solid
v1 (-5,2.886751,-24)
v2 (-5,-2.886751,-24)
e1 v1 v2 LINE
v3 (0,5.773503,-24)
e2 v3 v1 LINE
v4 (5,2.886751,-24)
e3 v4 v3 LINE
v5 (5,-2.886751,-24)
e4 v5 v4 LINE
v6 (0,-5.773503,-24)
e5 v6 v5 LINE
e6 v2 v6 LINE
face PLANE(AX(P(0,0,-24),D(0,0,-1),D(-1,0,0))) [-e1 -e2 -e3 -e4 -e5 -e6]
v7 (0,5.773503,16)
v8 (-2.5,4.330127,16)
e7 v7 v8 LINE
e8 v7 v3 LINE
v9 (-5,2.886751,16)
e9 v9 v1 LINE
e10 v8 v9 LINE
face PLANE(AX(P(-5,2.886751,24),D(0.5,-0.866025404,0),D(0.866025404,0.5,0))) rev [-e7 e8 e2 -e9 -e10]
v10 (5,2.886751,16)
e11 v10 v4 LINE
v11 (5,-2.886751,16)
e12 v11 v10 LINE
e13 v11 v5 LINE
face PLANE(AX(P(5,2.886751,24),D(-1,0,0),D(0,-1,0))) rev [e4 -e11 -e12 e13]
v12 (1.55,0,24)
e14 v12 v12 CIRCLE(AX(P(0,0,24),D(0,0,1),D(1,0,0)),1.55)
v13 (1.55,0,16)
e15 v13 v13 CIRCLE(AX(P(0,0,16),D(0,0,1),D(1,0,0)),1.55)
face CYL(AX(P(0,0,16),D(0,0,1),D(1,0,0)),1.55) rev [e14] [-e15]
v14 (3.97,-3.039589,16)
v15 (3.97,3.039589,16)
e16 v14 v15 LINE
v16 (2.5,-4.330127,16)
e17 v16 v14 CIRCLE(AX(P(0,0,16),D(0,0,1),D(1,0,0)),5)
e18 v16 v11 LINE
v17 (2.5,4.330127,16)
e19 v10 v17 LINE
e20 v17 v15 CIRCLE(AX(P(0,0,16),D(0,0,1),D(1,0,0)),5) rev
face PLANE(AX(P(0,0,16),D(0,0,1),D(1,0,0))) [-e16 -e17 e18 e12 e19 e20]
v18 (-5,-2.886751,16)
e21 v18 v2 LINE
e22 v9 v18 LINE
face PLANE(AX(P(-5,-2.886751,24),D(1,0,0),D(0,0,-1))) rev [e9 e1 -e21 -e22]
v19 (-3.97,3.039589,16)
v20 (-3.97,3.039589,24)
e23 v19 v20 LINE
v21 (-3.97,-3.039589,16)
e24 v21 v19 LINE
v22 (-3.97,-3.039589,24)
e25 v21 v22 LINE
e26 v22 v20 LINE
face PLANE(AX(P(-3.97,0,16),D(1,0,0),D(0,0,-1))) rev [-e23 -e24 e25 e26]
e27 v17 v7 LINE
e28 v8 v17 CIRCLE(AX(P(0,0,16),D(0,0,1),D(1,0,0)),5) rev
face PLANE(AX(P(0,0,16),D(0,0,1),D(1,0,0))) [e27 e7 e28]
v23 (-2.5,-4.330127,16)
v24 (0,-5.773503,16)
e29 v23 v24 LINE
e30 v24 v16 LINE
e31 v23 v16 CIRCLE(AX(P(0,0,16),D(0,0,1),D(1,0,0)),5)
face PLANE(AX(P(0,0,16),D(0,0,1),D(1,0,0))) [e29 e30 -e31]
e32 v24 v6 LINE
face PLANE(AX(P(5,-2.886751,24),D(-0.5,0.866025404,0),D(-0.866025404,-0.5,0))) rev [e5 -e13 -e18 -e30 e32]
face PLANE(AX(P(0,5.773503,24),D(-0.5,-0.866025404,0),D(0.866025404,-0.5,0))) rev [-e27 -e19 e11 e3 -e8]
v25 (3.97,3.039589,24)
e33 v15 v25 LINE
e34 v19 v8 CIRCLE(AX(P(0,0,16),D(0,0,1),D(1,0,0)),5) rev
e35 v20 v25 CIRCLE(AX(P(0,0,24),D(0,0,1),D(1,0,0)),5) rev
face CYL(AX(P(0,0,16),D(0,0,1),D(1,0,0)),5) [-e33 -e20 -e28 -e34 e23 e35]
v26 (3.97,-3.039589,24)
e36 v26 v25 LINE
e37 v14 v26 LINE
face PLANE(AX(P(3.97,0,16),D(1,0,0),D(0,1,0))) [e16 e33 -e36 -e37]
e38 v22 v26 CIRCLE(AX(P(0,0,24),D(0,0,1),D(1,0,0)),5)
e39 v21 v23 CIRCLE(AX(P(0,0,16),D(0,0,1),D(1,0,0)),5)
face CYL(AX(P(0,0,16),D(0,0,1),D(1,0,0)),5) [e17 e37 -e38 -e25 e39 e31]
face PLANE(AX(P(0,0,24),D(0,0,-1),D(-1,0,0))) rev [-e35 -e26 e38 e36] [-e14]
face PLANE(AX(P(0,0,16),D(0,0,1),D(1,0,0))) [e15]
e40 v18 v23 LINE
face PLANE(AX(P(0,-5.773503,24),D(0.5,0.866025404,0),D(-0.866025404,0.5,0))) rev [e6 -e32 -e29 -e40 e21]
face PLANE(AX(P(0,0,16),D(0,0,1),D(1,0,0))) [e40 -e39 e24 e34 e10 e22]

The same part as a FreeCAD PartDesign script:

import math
import FreeCAD as App
import Part
import Sketcher
Q = App.Units.Quantity


def add_polygon(sketch, points):
    """Adds a closed chain of lines whose ends are joined by coincident constraints."""
    first, n = sketch.GeometryCount, len(points)
    for a, b in zip(points, points[1:] + points[:1]):
        sketch.addGeometry(Part.LineSegment(App.Vector(*a, 0), App.Vector(*b, 0)), False)
    for i in range(n):
        sketch.addConstraint(Sketcher.Constraint("Coincident", first + i, 2, first + (i + 1) % n, 1))

doc = App.newDocument("Part")
body = doc.addObject("PartDesign::Body", "Body")

# Sketch on XY plane
sketch1 = body.newObject("Sketcher::SketchObject", "Sketch")
sketch1.AttachmentSupport = (doc.getObject("XY_Plane"), [""])
sketch1.MapMode = "FlatFace"
add_polygon(sketch1, [(5, 3), (0, 6), (-5, 3), (-5, -3), (0, -6), (5, -3)])  # lines 0-5
sketch1.addConstraint(Sketcher.Constraint("Vertical", 2))
sketch1.addConstraint(Sketcher.Constraint("Vertical", 5))
sketch1.addConstraint(Sketcher.Constraint("Symmetric", 0, 2, 3, 2, -1, 1))
sketch1.addConstraint(Sketcher.Constraint("Symmetric", 1, 2, 4, 2, -1, 1))
sketch1.addConstraint(Sketcher.Constraint("PointOnObject", 0, 2, -2))
sketch1.addConstraint(Sketcher.Constraint("Parallel", 0, 3))
sketch1.addConstraint(Sketcher.Constraint("Horizontal", 2, 2, 4, 2))
sketch1.addConstraint(Sketcher.Constraint("Angle", 0, Q("150 deg")))
sketch1.addConstraint(Sketcher.Constraint("DistanceX", 1, 2, -1, 1, Q("5 mm")))
sketch1.addConstraint(Sketcher.Constraint("DistanceY", 2, 2, 2, 1, Q("5.773503 mm")))
pad1 = body.newObject("PartDesign::Pad", "Pad")
pad1.Profile = sketch1
pad1.Length = 48
pad1.Midplane = True

# Sketch on XY plane
sketch2 = body.newObject("Sketcher::SketchObject", "Sketch001")
sketch2.AttachmentSupport = (doc.getObject("XY_Plane"), [""])
sketch2.MapMode = "FlatFace"
sketch2.AttachmentOffset = App.Placement(App.Vector(0, 0, 24), App.Rotation())
sketch2.addGeometry(Part.LineSegment(App.Vector(-5, -2.9, 0), App.Vector(-2.5, -4.3, 0)), False)
sketch2.addGeometry(Part.ArcOfCircle(Part.Circle(App.Vector(0, 0, 0), App.Vector(0, 0, 1), 5), math.radians(-143), math.radians(-120)), False)
sketch2.addGeometry(Part.LineSegment(App.Vector(-4, -3, 0), App.Vector(-4, 3, 0)), False)
sketch2.addGeometry(Part.ArcOfCircle(Part.Circle(App.Vector(0, 0, 0), App.Vector(0, 0, 1), 5), math.radians(120), math.radians(143)), False)
sketch2.addGeometry(Part.LineSegment(App.Vector(-2.5, 4.3, 0), App.Vector(-5, 2.9, 0)), False)
sketch2.addGeometry(Part.LineSegment(App.Vector(-5, 2.9, 0), App.Vector(-5, -2.9, 0)), False)
sketch2.addGeometry(Part.ArcOfCircle(Part.Circle(App.Vector(0, 0, 0), App.Vector(0, 0, 1), 5), math.radians(60), math.radians(120)), False)
sketch2.addGeometry(Part.LineSegment(App.Vector(2.5, 4.3, 0), App.Vector(0, 5.8, 0)), False)
sketch2.addGeometry(Part.LineSegment(App.Vector(0, 5.8, 0), App.Vector(-2.5, 4.3, 0)), False)
sketch2.addGeometry(Part.LineSegment(App.Vector(4, 3, 0), App.Vector(4, -3, 0)), False)
sketch2.addGeometry(Part.ArcOfCircle(Part.Circle(App.Vector(0, 0, 0), App.Vector(0, 0, 1), 5), math.radians(-60), math.radians(-37)), False)
sketch2.addGeometry(Part.LineSegment(App.Vector(2.5, -4.3, 0), App.Vector(5, -2.9, 0)), False)
sketch2.addGeometry(Part.LineSegment(App.Vector(5, -2.9, 0), App.Vector(5, 2.9, 0)), False)
sketch2.addGeometry(Part.LineSegment(App.Vector(5, 2.9, 0), App.Vector(2.5, 4.3, 0)), False)
sketch2.addGeometry(Part.ArcOfCircle(Part.Circle(App.Vector(0, 0, 0), App.Vector(0, 0, 1), 5), math.radians(37), math.radians(60)), False)
sketch2.addGeometry(Part.LineSegment(App.Vector(0, -5.8, 0), App.Vector(2.5, -4.3, 0)), False)
sketch2.addGeometry(Part.ArcOfCircle(Part.Circle(App.Vector(0, 0, 0), App.Vector(0, 0, 1), 5), math.radians(-120), math.radians(-60)), False)
sketch2.addGeometry(Part.LineSegment(App.Vector(-2.5, -4.3, 0), App.Vector(0, -5.8, 0)), False)
sketch2.addGeometry(Part.Circle(App.Vector(0, 0, 0), App.Vector(0, 0, 1), 1.6), False)
sketch2.addConstraint(Sketcher.Constraint("Tangent", 0, 2, 1, 2))
sketch2.addConstraint(Sketcher.Constraint("Coincident", 1, 1, 2, 1))
sketch2.addConstraint(Sketcher.Constraint("Coincident", 2, 2, 3, 2))
sketch2.addConstraint(Sketcher.Constraint("Tangent", 3, 1, 4, 1))
sketch2.addConstraint(Sketcher.Constraint("Coincident", 4, 2, 5, 1))
sketch2.addConstraint(Sketcher.Constraint("Coincident", 5, 2, 0, 1))
sketch2.addConstraint(Sketcher.Constraint("Tangent", 6, 1, 7, 1))
sketch2.addConstraint(Sketcher.Constraint("Coincident", 7, 2, 8, 1))
sketch2.addConstraint(Sketcher.Constraint("Tangent", 8, 2, 6, 2))
sketch2.addConstraint(Sketcher.Constraint("Coincident", 9, 2, 10, 2))
sketch2.addConstraint(Sketcher.Constraint("Tangent", 10, 1, 11, 1))
sketch2.addConstraint(Sketcher.Constraint("Coincident", 11, 2, 12, 1))
sketch2.addConstraint(Sketcher.Constraint("Coincident", 12, 2, 13, 1))
sketch2.addConstraint(Sketcher.Constraint("Tangent", 13, 2, 14, 2))
sketch2.addConstraint(Sketcher.Constraint("Coincident", 14, 1, 9, 1))
sketch2.addConstraint(Sketcher.Constraint("Tangent", 15, 2, 16, 2))
sketch2.addConstraint(Sketcher.Constraint("Tangent", 16, 1, 17, 1))
sketch2.addConstraint(Sketcher.Constraint("Coincident", 17, 2, 15, 1))
sketch2.addConstraint(Sketcher.Constraint("Vertical", 2))
sketch2.addConstraint(Sketcher.Constraint("Vertical", 5))
sketch2.addConstraint(Sketcher.Constraint("Vertical", 9))
sketch2.addConstraint(Sketcher.Constraint("Vertical", 12))
sketch2.addConstraint(Sketcher.Constraint("Coincident", 1, 3, -1, 1))
sketch2.addConstraint(Sketcher.Constraint("Coincident", 3, 3, -1, 1))
sketch2.addConstraint(Sketcher.Constraint("Coincident", 6, 3, -1, 1))
sketch2.addConstraint(Sketcher.Constraint("Coincident", 10, 3, -1, 1))
sketch2.addConstraint(Sketcher.Constraint("Coincident", 14, 3, -1, 1))
sketch2.addConstraint(Sketcher.Constraint("Coincident", 16, 3, -1, 1))
sketch2.addConstraint(Sketcher.Constraint("Coincident", 18, 3, -1, 1))
sketch2.addConstraint(Sketcher.Constraint("Coincident", 8, 2, 3, 1))
sketch2.addConstraint(Sketcher.Constraint("Coincident", 13, 2, 6, 1))
sketch2.addConstraint(Sketcher.Constraint("Coincident", 15, 2, 10, 1))
sketch2.addConstraint(Sketcher.Constraint("Coincident", 16, 1, 0, 2))
sketch2.addConstraint(Sketcher.Constraint("Equal", 1, 3))
sketch2.addConstraint(Sketcher.Constraint("Symmetric", 4, 2, 11, 2, -1, 1))
sketch2.addConstraint(Sketcher.Constraint("Symmetric", 7, 2, 17, 2, -1))
sketch2.addConstraint(Sketcher.Constraint("Horizontal", 1, 1, 9, 2))
sketch2.addConstraint(Sketcher.Constraint("Equal", 4, 7))
sketch2.addConstraint(Sketcher.Constraint("Radius", 1, Q("5 mm")))
sketch2.addConstraint(Sketcher.Constraint("Diameter", 18, Q("3.1 mm")))
sketch2.addConstraint(Sketcher.Constraint("Angle", 0, Q("-30 deg")))
sketch2.addConstraint(Sketcher.Constraint("DistanceX", 1, 1, -1, 1, Q("3.97 mm")))
pocket1 = body.newObject("PartDesign::Pocket", "Pocket")
pocket1.Profile = sketch2
pocket1.Length = 8

doc.recompute()
